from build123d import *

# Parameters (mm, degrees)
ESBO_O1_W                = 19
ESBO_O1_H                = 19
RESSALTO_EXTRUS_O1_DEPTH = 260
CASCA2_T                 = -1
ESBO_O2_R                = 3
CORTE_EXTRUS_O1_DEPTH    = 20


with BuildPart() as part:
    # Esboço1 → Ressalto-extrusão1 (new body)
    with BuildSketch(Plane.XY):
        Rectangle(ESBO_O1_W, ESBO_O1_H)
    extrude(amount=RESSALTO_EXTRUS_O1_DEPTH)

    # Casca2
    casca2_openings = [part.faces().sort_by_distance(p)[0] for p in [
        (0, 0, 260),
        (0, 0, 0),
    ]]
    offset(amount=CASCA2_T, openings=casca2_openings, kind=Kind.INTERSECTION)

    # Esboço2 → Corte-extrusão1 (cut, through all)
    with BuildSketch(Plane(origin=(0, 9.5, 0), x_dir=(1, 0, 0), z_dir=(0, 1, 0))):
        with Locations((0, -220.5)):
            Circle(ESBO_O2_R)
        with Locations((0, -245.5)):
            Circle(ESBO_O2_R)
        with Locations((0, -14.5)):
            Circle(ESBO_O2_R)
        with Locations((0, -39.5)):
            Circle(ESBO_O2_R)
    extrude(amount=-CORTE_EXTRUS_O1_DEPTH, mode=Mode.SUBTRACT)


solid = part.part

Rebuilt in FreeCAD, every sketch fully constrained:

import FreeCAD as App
import Part
import Sketcher


def faces_at(feature, points):
    """Names of the faces that lie closest to the given points."""
    faces = feature.Shape.Faces
    near = lambda p: min(range(len(faces)), key=lambda i: faces[i].distToShape(Part.Vertex(*p))[0])
    return sorted({f"Face{near(p) + 1}" for p in points})


def add_polygon(sketch, points):
    """Adds a closed chain of lines whose ends are joined by coincident constraints."""
    first, n = sketch.GeometryCount, len(points)
    for a, b in zip(points, points[1:] + points[:1]):
        sketch.addGeometry(Part.LineSegment(App.Vector(*a, 0), App.Vector(*b, 0)), False)
    for i in range(n):
        sketch.addConstraint(Sketcher.Constraint("Coincident", first + i, 2, first + (i + 1) % n, 1))

doc = App.newDocument("Part")
params = doc.addObject("Spreadsheet::Sheet", "Params")
for row, (alias, value) in enumerate([
    ("sketch1_width", "19 mm"),
    ("pad1_length", "260 mm"),
    ("thickness_wall", "1 mm"),
    ("sketch2_diameter", "6 mm"),
], start=1):
    params.set(f"A{row}", alias)
    params.set(f"B{row}", "=" + value)
    params.setAlias(f"B{row}", alias)

body = doc.addObject("PartDesign::Body", "Body")

# Sketch on XY plane
sketch1 = body.newObject("Sketcher::SketchObject", "Sketch")
sketch1.AttachmentSupport = (doc.getObject("XY_Plane"), [""])
sketch1.MapMode = "FlatFace"
add_polygon(sketch1, [(-9.5, 9.5), (-9.5, -9.5), (9.5, -9.5), (9.5, 9.5)])  # lines 0-3
sketch1.addConstraint(Sketcher.Constraint("Vertical", 0))
sketch1.addConstraint(Sketcher.Constraint("Horizontal", 1))
sketch1.addConstraint(Sketcher.Constraint("Vertical", 2))
sketch1.addConstraint(Sketcher.Constraint("Horizontal", 3))
sketch1.addConstraint(Sketcher.Constraint("Symmetric", 0, 2, 2, 2, -1, 1))
sketch1.addConstraint(Sketcher.Constraint("Equal", 3, 0))
sketch1.addConstraint(Sketcher.Constraint("DistanceX", 1, 1, 1, 2, 19.0))
sketch1.setExpression("Constraints[10]", "Params.sketch1_width")
pad1 = body.newObject("PartDesign::Pad", "Pad")
pad1.Profile = sketch1
pad1.setExpression("Length", "Params.pad1_length")
doc.recompute()

thickness = body.newObject("PartDesign::Thickness", "Thickness")
thickness.Base = (pad1, faces_at(pad1, [(0, 0, 260), (0, 0, 0)]))
thickness.setExpression("Value", "Params.thickness_wall")
thickness.Reversed = True
thickness.Join = "Intersection"

# Sketch on XZ plane
sketch2 = body.newObject("Sketcher::SketchObject", "Sketch001")
sketch2.AttachmentSupport = (doc.getObject("XZ_Plane"), [""])
sketch2.MapMode = "FlatFace"
sketch2.AttachmentOffset = App.Placement(App.Vector(0, 0, -9.5), App.Rotation())
sketch2.addGeometry(Part.Circle(App.Vector(0, 220.5, 0), App.Vector(0, 0, 1), 3), False)
sketch2.addGeometry(Part.Circle(App.Vector(0, 245.5, 0), App.Vector(0, 0, 1), 3), False)
sketch2.addGeometry(Part.Circle(App.Vector(0, 14.5, 0), App.Vector(0, 0, 1), 3), False)
sketch2.addGeometry(Part.Circle(App.Vector(0, 39.5, 0), App.Vector(0, 0, 1), 3), False)
sketch2.addConstraint(Sketcher.Constraint("Equal", 0, 1))
sketch2.addConstraint(Sketcher.Constraint("Equal", 1, 2))
sketch2.addConstraint(Sketcher.Constraint("Equal", 2, 3))
sketch2.addConstraint(Sketcher.Constraint("PointOnObject", 0, 3, -2))
sketch2.addConstraint(Sketcher.Constraint("PointOnObject", 1, 3, -2))
sketch2.addConstraint(Sketcher.Constraint("PointOnObject", 2, 3, -2))
sketch2.addConstraint(Sketcher.Constraint("PointOnObject", 3, 3, -2))
sketch2.addConstraint(Sketcher.Constraint("Diameter", 0, 6.0))
sketch2.addConstraint(Sketcher.Constraint("DistanceY", 0, 3, 1, 3, 25.0))
sketch2.addConstraint(Sketcher.Constraint("DistanceY", 2, 3, 0, 3, 206.0))
sketch2.addConstraint(Sketcher.Constraint("DistanceY", 2, 3, 3, 3, 25.0))
sketch2.addConstraint(Sketcher.Constraint("DistanceY", -1, 1, 0, 3, 220.5))
sketch2.setExpression("Constraints[7]", "Params.sketch2_diameter")
pocket1 = body.newObject("PartDesign::Pocket", "Pocket")
pocket1.Profile = sketch2
pocket1.Type = "ThroughAll"
pocket1.Reversed = True

doc.recompute()
